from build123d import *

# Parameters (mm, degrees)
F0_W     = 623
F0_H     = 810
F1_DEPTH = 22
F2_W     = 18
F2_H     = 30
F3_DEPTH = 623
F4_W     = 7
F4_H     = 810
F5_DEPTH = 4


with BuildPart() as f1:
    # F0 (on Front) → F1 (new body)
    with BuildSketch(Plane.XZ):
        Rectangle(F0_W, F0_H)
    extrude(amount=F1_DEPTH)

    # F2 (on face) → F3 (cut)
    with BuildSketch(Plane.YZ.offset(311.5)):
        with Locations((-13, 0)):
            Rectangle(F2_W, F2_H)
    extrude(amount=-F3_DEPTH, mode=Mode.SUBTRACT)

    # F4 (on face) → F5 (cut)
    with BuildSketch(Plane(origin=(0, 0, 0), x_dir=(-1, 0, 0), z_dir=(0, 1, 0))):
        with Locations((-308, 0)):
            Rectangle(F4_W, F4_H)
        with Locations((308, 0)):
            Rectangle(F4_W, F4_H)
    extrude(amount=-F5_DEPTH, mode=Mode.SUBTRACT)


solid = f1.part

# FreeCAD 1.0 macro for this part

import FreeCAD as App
import Part
import Sketcher

V = App.Vector
Q = App.Units.Quantity

doc = App.newDocument("Part")
body = doc.addObject("PartDesign::Body", "Body")

sketch1 = body.newObject("Sketcher::SketchObject", "Sketch")
sketch1.AttachmentSupport = (doc.getObject("XZ_Plane"), [""])
sketch1.MapMode = "FlatFace"
sketch1.addGeometry(Part.LineSegment(V(-312, 405, 0), V(-312, -405, 0)), False)
sketch1.addGeometry(Part.LineSegment(V(-312, -405, 0), V(312, -405, 0)), False)
sketch1.addGeometry(Part.LineSegment(V(312, -405, 0), V(312, 405, 0)), False)
sketch1.addGeometry(Part.LineSegment(V(312, 405, 0), V(-312, 405, 0)), False)
sketch1.addConstraint(Sketcher.Constraint("Coincident", 0, 2, 1, 1))
sketch1.addConstraint(Sketcher.Constraint("Coincident", 1, 2, 2, 1))
sketch1.addConstraint(Sketcher.Constraint("Coincident", 2, 2, 3, 1))
sketch1.addConstraint(Sketcher.Constraint("Coincident", 3, 2, 0, 1))
sketch1.addConstraint(Sketcher.Constraint("Vertical", 0))
sketch1.addConstraint(Sketcher.Constraint("Horizontal", 1))
sketch1.addConstraint(Sketcher.Constraint("Vertical", 2))
sketch1.addConstraint(Sketcher.Constraint("Horizontal", 3))
sketch1.addConstraint(Sketcher.Constraint("Symmetric", 0, 2, 2, 2, -1, 1))
sketch1.addConstraint(Sketcher.Constraint("DistanceX", 1, 1, 1, 2, Q("623 mm")))
sketch1.addConstraint(Sketcher.Constraint("DistanceY", 0, 2, 0, 1, Q("810 mm")))
pad1 = body.newObject("PartDesign::Pad", "Pad")
pad1.Profile = sketch1
pad1.Length = 22

sketch2 = body.newObject("Sketcher::SketchObject", "Sketch001")
sketch2.AttachmentSupport = (doc.getObject("YZ_Plane"), [""])
sketch2.MapMode = "FlatFace"
sketch2.AttachmentOffset = App.Placement(V(0, 0, 311.5), App.Rotation())
sketch2.addGeometry(Part.LineSegment(V(-22, 15, 0), V(-22, -15, 0)), False)
sketch2.addGeometry(Part.LineSegment(V(-22, -15, 0), V(-4, -15, 0)), False)
sketch2.addGeometry(Part.LineSegment(V(-4, -15, 0), V(-4, 15, 0)), False)
sketch2.addGeometry(Part.LineSegment(V(-4, 15, 0), V(-22, 15, 0)), False)
sketch2.addConstraint(Sketcher.Constraint("Coincident", 0, 2, 1, 1))
sketch2.addConstraint(Sketcher.Constraint("Coincident", 1, 2, 2, 1))
sketch2.addConstraint(Sketcher.Constraint("Coincident", 2, 2, 3, 1))
sketch2.addConstraint(Sketcher.Constraint("Coincident", 3, 2, 0, 1))
sketch2.addConstraint(Sketcher.Constraint("Vertical", 0))
sketch2.addConstraint(Sketcher.Constraint("Horizontal", 1))
sketch2.addConstraint(Sketcher.Constraint("Vertical", 2))
sketch2.addConstraint(Sketcher.Constraint("Horizontal", 3))
sketch2.addConstraint(Sketcher.Constraint("DistanceX", 1, 1, 1, 2, Q("18 mm")))
sketch2.addConstraint(Sketcher.Constraint("DistanceY", 0, 2, 0, 1, Q("30 mm")))
sketch2.addConstraint(Sketcher.Constraint("DistanceX", 0, 2, -1, 1, Q("22 mm")))
sketch2.addConstraint(Sketcher.Constraint("DistanceY", 0, 2, -1, 1, Q("15 mm")))
pocket1 = body.newObject("PartDesign::Pocket", "Pocket")
pocket1.Profile = sketch2
pocket1.Length = 623

sketch3 = body.newObject("Sketcher::SketchObject", "Sketch002")
sketch3.AttachmentSupport = (doc.getObject("XZ_Plane"), [""])
sketch3.MapMode = "FlatFace"
sketch3.addGeometry(Part.LineSegment(V(312, 405, 0), V(312, -405, 0)), False)
sketch3.addGeometry(Part.LineSegment(V(312, -405, 0), V(304, -405, 0)), False)
sketch3.addGeometry(Part.LineSegment(V(304, -405, 0), V(304, 405, 0)), False)
sketch3.addGeometry(Part.LineSegment(V(304, 405, 0), V(312, 405, 0)), False)
sketch3.addGeometry(Part.LineSegment(V(-304, 405, 0), V(-304, -405, 0)), False)
sketch3.addGeometry(Part.LineSegment(V(-304, -405, 0), V(-312, -405, 0)), False)
sketch3.addGeometry(Part.LineSegment(V(-312, -405, 0), V(-312, 405, 0)), False)
sketch3.addGeometry(Part.LineSegment(V(-312, 405, 0), V(-304, 405, 0)), False)
sketch3.addConstraint(Sketcher.Constraint("Coincident", 0, 2, 1, 1))
sketch3.addConstraint(Sketcher.Constraint("Coincident", 1, 2, 2, 1))
sketch3.addConstraint(Sketcher.Constraint("Coincident", 2, 2, 3, 1))
sketch3.addConstraint(Sketcher.Constraint("Coincident", 3, 2, 0, 1))
sketch3.addConstraint(Sketcher.Constraint("Coincident", 4, 2, 5, 1))
sketch3.addConstraint(Sketcher.Constraint("Coincident", 5, 2, 6, 1))
sketch3.addConstraint(Sketcher.Constraint("Coincident", 6, 2, 7, 1))
sketch3.addConstraint(Sketcher.Constraint("Coincident", 7, 2, 4, 1))
sketch3.addConstraint(Sketcher.Constraint("Vertical", 0))
sketch3.addConstraint(Sketcher.Constraint("Horizontal", 1))
sketch3.addConstraint(Sketcher.Constraint("Vertical", 2))
sketch3.addConstraint(Sketcher.Constraint("Horizontal", 3))
sketch3.addConstraint(Sketcher.Constraint("Vertical", 4))
sketch3.addConstraint(Sketcher.Constraint("Horizontal", 5))
sketch3.addConstraint(Sketcher.Constraint("Vertical", 6))
sketch3.addConstraint(Sketcher.Constraint("Horizontal", 7))
sketch3.addConstraint(Sketcher.Constraint("Symmetric", 2, 2, 4, 2, -1, 1))
sketch3.addConstraint(Sketcher.Constraint("Symmetric", 0, 2, 6, 2, -1, 1))
sketch3.addConstraint(Sketcher.Constraint("Horizontal", 1, 2, 4, 2))
sketch3.addConstraint(Sketcher.Constraint("DistanceX", 1, 2, 1, 1, Q("7 mm")))
sketch3.addConstraint(Sketcher.Constraint("DistanceY", 0, 2, 0, 1, Q("810 mm")))
sketch3.addConstraint(Sketcher.Constraint("DistanceX", 4, 2, 1, 2, Q("609 mm")))
pocket2 = body.newObject("PartDesign::Pocket", "Pocket001")
pocket2.Profile = sketch3
pocket2.Length = 4
pocket2.Reversed = True

doc.recompute()
